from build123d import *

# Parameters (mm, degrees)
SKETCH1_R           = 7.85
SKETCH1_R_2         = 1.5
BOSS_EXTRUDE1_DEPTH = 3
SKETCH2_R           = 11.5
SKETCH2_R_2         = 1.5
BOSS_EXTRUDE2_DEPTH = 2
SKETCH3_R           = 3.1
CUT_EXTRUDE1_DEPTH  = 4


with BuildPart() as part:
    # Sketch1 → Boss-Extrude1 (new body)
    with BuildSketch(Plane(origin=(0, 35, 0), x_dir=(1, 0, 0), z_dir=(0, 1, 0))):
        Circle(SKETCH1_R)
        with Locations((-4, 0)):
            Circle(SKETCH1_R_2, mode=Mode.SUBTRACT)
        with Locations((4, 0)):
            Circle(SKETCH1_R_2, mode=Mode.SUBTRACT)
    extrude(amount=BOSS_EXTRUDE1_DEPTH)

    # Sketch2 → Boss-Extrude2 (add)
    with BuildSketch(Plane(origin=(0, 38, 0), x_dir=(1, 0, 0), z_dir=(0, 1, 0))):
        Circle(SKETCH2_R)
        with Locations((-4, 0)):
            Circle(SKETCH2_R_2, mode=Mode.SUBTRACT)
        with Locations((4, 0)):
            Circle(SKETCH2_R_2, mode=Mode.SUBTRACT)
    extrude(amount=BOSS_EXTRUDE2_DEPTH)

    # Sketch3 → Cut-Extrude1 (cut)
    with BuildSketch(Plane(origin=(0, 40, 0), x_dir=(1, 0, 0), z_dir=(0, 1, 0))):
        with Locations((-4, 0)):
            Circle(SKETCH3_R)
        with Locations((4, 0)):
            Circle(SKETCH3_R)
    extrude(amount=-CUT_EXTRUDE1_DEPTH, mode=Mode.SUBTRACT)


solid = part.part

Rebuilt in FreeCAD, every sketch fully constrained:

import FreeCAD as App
import Part
import Sketcher
from FreeCAD import Vector

doc = App.newDocument("Part")
body = doc.addObject("PartDesign::Body", "Body")

sketch1 = body.newObject("Sketcher::SketchObject", "Sketch")
sketch1.AttachmentSupport = (doc.getObject("XZ_Plane"), [""])
sketch1.MapMode = "FlatFace"
sketch1.AttachmentOffset = App.Placement(Vector(0, 0, -35), App.Rotation())
sketch1.addGeometry(Part.Circle(Vector(0, 0, 0), Vector(0, 0, 1), 7.8), False)
sketch1.addGeometry(Part.Circle(Vector(-4, 0, 0), Vector(0, 0, 1), 1.5), False)
sketch1.addGeometry(Part.Circle(Vector(4, 0, 0), Vector(0, 0, 1), 1.5), False)
sketch1.addConstraint(Sketcher.Constraint("Coincident", 0, 3, -1, 1))
sketch1.addConstraint(Sketcher.Constraint("Equal", 1, 2))
sketch1.addConstraint(Sketcher.Constraint("Symmetric", 1, 3, 2, 3, -1, 1))
sketch1.addConstraint(Sketcher.Constraint("PointOnObject", 1, 3, -1))
sketch1.addConstraint(Sketcher.Constraint("Diameter", 1, 3.0))
sketch1.addConstraint(Sketcher.Constraint("Diameter", 0, 15.7))
sketch1.addConstraint(Sketcher.Constraint("DistanceX", 1, 3, -1, 1, 4.0))
pad1 = body.newObject("PartDesign::Pad", "Pad")
pad1.Profile = sketch1
pad1.Length = 3
pad1.Reversed = True

sketch2 = body.newObject("Sketcher::SketchObject", "Sketch001")
sketch2.AttachmentSupport = (doc.getObject("XZ_Plane"), [""])
sketch2.MapMode = "FlatFace"
sketch2.AttachmentOffset = App.Placement(Vector(0, 0, -38), App.Rotation())
sketch2.addGeometry(Part.Circle(Vector(0, 0, 0), Vector(0, 0, 1), 11.5), False)
sketch2.addGeometry(Part.Circle(Vector(-4, 0, 0), Vector(0, 0, 1), 1.5), False)
sketch2.addGeometry(Part.Circle(Vector(4, 0, 0), Vector(0, 0, 1), 1.5), False)
sketch2.addConstraint(Sketcher.Constraint("Coincident", 0, 3, -1, 1))
sketch2.addConstraint(Sketcher.Constraint("Equal", 1, 2))
sketch2.addConstraint(Sketcher.Constraint("Symmetric", 1, 3, 2, 3, -1, 1))
sketch2.addConstraint(Sketcher.Constraint("PointOnObject", 1, 3, -1))
sketch2.addConstraint(Sketcher.Constraint("Diameter", 0, 23.0))
sketch2.addConstraint(Sketcher.Constraint("Diameter", 1, 3.0))
sketch2.addConstraint(Sketcher.Constraint("DistanceX", 1, 3, -1, 1, 4.0))
pad2 = body.newObject("PartDesign::Pad", "Pad001")
pad2.Profile = sketch2
pad2.Length = 2
pad2.Reversed = True

sketch3 = body.newObject("Sketcher::SketchObject", "Sketch002")
sketch3.AttachmentSupport = (doc.getObject("XZ_Plane"), [""])
sketch3.MapMode = "FlatFace"
sketch3.AttachmentOffset = App.Placement(Vector(0, 0, -40), App.Rotation())
sketch3.addGeometry(Part.Circle(Vector(-4, 0, 0), Vector(0, 0, 1), 3.1), False)
sketch3.addGeometry(Part.Circle(Vector(4, 0, 0), Vector(0, 0, 1), 3.1), False)
sketch3.addConstraint(Sketcher.Constraint("Equal", 0, 1))
sketch3.addConstraint(Sketcher.Constraint("Symmetric", 0, 3, 1, 3, -1, 1))
sketch3.addConstraint(Sketcher.Constraint("PointOnObject", 0, 3, -1))
sketch3.addConstraint(Sketcher.Constraint("Diameter", 0, 6.2))
sketch3.addConstraint(Sketcher.Constraint("DistanceX", 0, 3, -1, 1, 4.0))
pocket1 = body.newObject("PartDesign::Pocket", "Pocket")
pocket1.Profile = sketch3
pocket1.Length = 4
pocket1.Reversed = True

doc.recompute()
